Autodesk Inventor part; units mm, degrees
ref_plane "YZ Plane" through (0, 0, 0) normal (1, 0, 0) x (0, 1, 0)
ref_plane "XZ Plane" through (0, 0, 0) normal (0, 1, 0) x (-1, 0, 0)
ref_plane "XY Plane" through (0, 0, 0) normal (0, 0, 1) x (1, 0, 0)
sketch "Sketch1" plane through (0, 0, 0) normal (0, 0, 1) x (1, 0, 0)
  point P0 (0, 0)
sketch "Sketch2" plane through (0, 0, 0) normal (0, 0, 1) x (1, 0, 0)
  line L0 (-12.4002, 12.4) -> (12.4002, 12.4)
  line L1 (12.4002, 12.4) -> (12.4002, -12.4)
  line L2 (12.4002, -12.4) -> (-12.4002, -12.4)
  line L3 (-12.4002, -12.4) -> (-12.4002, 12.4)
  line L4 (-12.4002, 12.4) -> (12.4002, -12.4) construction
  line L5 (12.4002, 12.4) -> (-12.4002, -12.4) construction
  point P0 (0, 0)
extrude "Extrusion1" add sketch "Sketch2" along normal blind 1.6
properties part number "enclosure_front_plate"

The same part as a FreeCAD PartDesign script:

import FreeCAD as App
import Part
import Sketcher
from FreeCAD import Vector
Q = App.Units.Quantity

doc = App.newDocument("Part")
body = doc.addObject("PartDesign::Body", "Body")

# Sketch on XY plane
sketch1 = body.newObject("Sketcher::SketchObject", "Sketch")
sketch1.AttachmentSupport = (doc.getObject("XY_Plane"), [""])
sketch1.MapMode = "FlatFace"
sketch1.addGeometry([
    Part.LineSegment(Vector(12.4002, 12.4, 0), Vector(-12.4002, 12.4, 0)),
    Part.LineSegment(Vector(-12.4002, 12.4, 0), Vector(-12.4002, -12.4, 0)),
    Part.LineSegment(Vector(-12.4002, -12.4, 0), Vector(12.4002, -12.4, 0)),
    Part.LineSegment(Vector(12.4002, -12.4, 0), Vector(12.4002, 12.4, 0)),
], False)
sketch1.addConstraint([
    Sketcher.Constraint("Coincident", 0, 2, 1, 1),
    Sketcher.Constraint("Coincident", 1, 2, 2, 1),
    Sketcher.Constraint("Coincident", 2, 2, 3, 1),
    Sketcher.Constraint("Coincident", 3, 2, 0, 1),
    Sketcher.Constraint("Horizontal", 0),
    Sketcher.Constraint("Vertical", 1),
    Sketcher.Constraint("Horizontal", 2),
    Sketcher.Constraint("Vertical", 3),
    Sketcher.Constraint("Symmetric", 0, 2, 2, 2, -1, 1),
    Sketcher.Constraint("DistanceY", 1, 2, 1, 1, Q("24.8 mm")),
    Sketcher.Constraint("DistanceX", 0, 2, 0, 1, Q("24.8004 mm")),
])
pad1 = body.newObject("PartDesign::Pad", "Pad")
pad1.Profile = sketch1
pad1.Length = 1.6

doc.recompute()
